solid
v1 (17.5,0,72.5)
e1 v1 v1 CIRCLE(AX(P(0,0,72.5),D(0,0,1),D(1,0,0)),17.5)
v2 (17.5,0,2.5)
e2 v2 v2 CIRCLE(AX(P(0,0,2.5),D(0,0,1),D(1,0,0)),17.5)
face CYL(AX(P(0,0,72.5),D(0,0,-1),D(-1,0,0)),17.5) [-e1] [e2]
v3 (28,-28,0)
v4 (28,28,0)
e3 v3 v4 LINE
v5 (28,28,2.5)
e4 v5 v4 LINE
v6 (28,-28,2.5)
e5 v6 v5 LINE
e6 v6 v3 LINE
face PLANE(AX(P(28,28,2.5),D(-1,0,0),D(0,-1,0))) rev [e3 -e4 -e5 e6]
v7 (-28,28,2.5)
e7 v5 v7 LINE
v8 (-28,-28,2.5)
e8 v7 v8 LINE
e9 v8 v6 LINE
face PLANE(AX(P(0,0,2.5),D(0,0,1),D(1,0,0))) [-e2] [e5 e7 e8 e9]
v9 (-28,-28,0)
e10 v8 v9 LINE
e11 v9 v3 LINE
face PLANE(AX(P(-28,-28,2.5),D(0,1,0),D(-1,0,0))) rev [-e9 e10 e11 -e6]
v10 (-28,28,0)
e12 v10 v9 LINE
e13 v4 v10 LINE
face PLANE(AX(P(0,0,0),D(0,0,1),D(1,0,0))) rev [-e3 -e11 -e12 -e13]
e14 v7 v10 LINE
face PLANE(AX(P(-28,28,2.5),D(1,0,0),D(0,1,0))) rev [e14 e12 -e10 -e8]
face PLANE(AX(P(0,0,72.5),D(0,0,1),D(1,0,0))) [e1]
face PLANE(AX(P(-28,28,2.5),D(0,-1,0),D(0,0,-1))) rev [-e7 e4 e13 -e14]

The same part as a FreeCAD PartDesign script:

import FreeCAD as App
import Part
import Sketcher

V = App.Vector
Q = App.Units.Quantity


def add_polygon(sketch, points):
    """Adds a closed chain of lines whose ends are joined by coincident constraints."""
    first, n = sketch.GeometryCount, len(points)
    for a, b in zip(points, points[1:] + points[:1]):
        sketch.addGeometry(Part.LineSegment(App.Vector(*a, 0), App.Vector(*b, 0)), False)
    for i in range(n):
        sketch.addConstraint(Sketcher.Constraint("Coincident", first + i, 2, first + (i + 1) % n, 1))

doc = App.newDocument("Part")
body = doc.addObject("PartDesign::Body", "Body")

# Sketch on XY plane
sketch1 = body.newObject("Sketcher::SketchObject", "Sketch")
sketch1.AttachmentSupport = (doc.getObject("XY_Plane"), [""])
sketch1.MapMode = "FlatFace"
add_polygon(sketch1, [(-28, 28), (-28, -28), (28, -28), (28, 28)])  # lines 0-3
sketch1.addConstraint([
    Sketcher.Constraint("Vertical", 0),
    Sketcher.Constraint("Horizontal", 1),
    Sketcher.Constraint("Vertical", 2),
    Sketcher.Constraint("Horizontal", 3),
    Sketcher.Constraint("Symmetric", 0, 2, 2, 2, -1, 1),
    Sketcher.Constraint("Equal", 3, 0),
    Sketcher.Constraint("DistanceX", 1, 1, 1, 2, Q("56 mm")),
])
pad1 = body.newObject("PartDesign::Pad", "Pad")
pad1.Profile = sketch1
pad1.Length = 2.5

# Sketch on XY plane
sketch2 = body.newObject("Sketcher::SketchObject", "Sketch001")
sketch2.AttachmentSupport = (doc.getObject("XY_Plane"), [""])
sketch2.MapMode = "FlatFace"
sketch2.AttachmentOffset = App.Placement(V(0, 0, 2.5), App.Rotation())
sketch2.addGeometry(Part.Circle(V(0, 0, 0), V(0, 0, 1), 17.5), False)
sketch2.addConstraint([
    Sketcher.Constraint("Coincident", 0, 3, -1, 1),
    Sketcher.Constraint("Diameter", 0, Q("35 mm")),
])
pad2 = body.newObject("PartDesign::Pad", "Pad001")
pad2.Profile = sketch2
pad2.Length = 70

doc.recompute()
